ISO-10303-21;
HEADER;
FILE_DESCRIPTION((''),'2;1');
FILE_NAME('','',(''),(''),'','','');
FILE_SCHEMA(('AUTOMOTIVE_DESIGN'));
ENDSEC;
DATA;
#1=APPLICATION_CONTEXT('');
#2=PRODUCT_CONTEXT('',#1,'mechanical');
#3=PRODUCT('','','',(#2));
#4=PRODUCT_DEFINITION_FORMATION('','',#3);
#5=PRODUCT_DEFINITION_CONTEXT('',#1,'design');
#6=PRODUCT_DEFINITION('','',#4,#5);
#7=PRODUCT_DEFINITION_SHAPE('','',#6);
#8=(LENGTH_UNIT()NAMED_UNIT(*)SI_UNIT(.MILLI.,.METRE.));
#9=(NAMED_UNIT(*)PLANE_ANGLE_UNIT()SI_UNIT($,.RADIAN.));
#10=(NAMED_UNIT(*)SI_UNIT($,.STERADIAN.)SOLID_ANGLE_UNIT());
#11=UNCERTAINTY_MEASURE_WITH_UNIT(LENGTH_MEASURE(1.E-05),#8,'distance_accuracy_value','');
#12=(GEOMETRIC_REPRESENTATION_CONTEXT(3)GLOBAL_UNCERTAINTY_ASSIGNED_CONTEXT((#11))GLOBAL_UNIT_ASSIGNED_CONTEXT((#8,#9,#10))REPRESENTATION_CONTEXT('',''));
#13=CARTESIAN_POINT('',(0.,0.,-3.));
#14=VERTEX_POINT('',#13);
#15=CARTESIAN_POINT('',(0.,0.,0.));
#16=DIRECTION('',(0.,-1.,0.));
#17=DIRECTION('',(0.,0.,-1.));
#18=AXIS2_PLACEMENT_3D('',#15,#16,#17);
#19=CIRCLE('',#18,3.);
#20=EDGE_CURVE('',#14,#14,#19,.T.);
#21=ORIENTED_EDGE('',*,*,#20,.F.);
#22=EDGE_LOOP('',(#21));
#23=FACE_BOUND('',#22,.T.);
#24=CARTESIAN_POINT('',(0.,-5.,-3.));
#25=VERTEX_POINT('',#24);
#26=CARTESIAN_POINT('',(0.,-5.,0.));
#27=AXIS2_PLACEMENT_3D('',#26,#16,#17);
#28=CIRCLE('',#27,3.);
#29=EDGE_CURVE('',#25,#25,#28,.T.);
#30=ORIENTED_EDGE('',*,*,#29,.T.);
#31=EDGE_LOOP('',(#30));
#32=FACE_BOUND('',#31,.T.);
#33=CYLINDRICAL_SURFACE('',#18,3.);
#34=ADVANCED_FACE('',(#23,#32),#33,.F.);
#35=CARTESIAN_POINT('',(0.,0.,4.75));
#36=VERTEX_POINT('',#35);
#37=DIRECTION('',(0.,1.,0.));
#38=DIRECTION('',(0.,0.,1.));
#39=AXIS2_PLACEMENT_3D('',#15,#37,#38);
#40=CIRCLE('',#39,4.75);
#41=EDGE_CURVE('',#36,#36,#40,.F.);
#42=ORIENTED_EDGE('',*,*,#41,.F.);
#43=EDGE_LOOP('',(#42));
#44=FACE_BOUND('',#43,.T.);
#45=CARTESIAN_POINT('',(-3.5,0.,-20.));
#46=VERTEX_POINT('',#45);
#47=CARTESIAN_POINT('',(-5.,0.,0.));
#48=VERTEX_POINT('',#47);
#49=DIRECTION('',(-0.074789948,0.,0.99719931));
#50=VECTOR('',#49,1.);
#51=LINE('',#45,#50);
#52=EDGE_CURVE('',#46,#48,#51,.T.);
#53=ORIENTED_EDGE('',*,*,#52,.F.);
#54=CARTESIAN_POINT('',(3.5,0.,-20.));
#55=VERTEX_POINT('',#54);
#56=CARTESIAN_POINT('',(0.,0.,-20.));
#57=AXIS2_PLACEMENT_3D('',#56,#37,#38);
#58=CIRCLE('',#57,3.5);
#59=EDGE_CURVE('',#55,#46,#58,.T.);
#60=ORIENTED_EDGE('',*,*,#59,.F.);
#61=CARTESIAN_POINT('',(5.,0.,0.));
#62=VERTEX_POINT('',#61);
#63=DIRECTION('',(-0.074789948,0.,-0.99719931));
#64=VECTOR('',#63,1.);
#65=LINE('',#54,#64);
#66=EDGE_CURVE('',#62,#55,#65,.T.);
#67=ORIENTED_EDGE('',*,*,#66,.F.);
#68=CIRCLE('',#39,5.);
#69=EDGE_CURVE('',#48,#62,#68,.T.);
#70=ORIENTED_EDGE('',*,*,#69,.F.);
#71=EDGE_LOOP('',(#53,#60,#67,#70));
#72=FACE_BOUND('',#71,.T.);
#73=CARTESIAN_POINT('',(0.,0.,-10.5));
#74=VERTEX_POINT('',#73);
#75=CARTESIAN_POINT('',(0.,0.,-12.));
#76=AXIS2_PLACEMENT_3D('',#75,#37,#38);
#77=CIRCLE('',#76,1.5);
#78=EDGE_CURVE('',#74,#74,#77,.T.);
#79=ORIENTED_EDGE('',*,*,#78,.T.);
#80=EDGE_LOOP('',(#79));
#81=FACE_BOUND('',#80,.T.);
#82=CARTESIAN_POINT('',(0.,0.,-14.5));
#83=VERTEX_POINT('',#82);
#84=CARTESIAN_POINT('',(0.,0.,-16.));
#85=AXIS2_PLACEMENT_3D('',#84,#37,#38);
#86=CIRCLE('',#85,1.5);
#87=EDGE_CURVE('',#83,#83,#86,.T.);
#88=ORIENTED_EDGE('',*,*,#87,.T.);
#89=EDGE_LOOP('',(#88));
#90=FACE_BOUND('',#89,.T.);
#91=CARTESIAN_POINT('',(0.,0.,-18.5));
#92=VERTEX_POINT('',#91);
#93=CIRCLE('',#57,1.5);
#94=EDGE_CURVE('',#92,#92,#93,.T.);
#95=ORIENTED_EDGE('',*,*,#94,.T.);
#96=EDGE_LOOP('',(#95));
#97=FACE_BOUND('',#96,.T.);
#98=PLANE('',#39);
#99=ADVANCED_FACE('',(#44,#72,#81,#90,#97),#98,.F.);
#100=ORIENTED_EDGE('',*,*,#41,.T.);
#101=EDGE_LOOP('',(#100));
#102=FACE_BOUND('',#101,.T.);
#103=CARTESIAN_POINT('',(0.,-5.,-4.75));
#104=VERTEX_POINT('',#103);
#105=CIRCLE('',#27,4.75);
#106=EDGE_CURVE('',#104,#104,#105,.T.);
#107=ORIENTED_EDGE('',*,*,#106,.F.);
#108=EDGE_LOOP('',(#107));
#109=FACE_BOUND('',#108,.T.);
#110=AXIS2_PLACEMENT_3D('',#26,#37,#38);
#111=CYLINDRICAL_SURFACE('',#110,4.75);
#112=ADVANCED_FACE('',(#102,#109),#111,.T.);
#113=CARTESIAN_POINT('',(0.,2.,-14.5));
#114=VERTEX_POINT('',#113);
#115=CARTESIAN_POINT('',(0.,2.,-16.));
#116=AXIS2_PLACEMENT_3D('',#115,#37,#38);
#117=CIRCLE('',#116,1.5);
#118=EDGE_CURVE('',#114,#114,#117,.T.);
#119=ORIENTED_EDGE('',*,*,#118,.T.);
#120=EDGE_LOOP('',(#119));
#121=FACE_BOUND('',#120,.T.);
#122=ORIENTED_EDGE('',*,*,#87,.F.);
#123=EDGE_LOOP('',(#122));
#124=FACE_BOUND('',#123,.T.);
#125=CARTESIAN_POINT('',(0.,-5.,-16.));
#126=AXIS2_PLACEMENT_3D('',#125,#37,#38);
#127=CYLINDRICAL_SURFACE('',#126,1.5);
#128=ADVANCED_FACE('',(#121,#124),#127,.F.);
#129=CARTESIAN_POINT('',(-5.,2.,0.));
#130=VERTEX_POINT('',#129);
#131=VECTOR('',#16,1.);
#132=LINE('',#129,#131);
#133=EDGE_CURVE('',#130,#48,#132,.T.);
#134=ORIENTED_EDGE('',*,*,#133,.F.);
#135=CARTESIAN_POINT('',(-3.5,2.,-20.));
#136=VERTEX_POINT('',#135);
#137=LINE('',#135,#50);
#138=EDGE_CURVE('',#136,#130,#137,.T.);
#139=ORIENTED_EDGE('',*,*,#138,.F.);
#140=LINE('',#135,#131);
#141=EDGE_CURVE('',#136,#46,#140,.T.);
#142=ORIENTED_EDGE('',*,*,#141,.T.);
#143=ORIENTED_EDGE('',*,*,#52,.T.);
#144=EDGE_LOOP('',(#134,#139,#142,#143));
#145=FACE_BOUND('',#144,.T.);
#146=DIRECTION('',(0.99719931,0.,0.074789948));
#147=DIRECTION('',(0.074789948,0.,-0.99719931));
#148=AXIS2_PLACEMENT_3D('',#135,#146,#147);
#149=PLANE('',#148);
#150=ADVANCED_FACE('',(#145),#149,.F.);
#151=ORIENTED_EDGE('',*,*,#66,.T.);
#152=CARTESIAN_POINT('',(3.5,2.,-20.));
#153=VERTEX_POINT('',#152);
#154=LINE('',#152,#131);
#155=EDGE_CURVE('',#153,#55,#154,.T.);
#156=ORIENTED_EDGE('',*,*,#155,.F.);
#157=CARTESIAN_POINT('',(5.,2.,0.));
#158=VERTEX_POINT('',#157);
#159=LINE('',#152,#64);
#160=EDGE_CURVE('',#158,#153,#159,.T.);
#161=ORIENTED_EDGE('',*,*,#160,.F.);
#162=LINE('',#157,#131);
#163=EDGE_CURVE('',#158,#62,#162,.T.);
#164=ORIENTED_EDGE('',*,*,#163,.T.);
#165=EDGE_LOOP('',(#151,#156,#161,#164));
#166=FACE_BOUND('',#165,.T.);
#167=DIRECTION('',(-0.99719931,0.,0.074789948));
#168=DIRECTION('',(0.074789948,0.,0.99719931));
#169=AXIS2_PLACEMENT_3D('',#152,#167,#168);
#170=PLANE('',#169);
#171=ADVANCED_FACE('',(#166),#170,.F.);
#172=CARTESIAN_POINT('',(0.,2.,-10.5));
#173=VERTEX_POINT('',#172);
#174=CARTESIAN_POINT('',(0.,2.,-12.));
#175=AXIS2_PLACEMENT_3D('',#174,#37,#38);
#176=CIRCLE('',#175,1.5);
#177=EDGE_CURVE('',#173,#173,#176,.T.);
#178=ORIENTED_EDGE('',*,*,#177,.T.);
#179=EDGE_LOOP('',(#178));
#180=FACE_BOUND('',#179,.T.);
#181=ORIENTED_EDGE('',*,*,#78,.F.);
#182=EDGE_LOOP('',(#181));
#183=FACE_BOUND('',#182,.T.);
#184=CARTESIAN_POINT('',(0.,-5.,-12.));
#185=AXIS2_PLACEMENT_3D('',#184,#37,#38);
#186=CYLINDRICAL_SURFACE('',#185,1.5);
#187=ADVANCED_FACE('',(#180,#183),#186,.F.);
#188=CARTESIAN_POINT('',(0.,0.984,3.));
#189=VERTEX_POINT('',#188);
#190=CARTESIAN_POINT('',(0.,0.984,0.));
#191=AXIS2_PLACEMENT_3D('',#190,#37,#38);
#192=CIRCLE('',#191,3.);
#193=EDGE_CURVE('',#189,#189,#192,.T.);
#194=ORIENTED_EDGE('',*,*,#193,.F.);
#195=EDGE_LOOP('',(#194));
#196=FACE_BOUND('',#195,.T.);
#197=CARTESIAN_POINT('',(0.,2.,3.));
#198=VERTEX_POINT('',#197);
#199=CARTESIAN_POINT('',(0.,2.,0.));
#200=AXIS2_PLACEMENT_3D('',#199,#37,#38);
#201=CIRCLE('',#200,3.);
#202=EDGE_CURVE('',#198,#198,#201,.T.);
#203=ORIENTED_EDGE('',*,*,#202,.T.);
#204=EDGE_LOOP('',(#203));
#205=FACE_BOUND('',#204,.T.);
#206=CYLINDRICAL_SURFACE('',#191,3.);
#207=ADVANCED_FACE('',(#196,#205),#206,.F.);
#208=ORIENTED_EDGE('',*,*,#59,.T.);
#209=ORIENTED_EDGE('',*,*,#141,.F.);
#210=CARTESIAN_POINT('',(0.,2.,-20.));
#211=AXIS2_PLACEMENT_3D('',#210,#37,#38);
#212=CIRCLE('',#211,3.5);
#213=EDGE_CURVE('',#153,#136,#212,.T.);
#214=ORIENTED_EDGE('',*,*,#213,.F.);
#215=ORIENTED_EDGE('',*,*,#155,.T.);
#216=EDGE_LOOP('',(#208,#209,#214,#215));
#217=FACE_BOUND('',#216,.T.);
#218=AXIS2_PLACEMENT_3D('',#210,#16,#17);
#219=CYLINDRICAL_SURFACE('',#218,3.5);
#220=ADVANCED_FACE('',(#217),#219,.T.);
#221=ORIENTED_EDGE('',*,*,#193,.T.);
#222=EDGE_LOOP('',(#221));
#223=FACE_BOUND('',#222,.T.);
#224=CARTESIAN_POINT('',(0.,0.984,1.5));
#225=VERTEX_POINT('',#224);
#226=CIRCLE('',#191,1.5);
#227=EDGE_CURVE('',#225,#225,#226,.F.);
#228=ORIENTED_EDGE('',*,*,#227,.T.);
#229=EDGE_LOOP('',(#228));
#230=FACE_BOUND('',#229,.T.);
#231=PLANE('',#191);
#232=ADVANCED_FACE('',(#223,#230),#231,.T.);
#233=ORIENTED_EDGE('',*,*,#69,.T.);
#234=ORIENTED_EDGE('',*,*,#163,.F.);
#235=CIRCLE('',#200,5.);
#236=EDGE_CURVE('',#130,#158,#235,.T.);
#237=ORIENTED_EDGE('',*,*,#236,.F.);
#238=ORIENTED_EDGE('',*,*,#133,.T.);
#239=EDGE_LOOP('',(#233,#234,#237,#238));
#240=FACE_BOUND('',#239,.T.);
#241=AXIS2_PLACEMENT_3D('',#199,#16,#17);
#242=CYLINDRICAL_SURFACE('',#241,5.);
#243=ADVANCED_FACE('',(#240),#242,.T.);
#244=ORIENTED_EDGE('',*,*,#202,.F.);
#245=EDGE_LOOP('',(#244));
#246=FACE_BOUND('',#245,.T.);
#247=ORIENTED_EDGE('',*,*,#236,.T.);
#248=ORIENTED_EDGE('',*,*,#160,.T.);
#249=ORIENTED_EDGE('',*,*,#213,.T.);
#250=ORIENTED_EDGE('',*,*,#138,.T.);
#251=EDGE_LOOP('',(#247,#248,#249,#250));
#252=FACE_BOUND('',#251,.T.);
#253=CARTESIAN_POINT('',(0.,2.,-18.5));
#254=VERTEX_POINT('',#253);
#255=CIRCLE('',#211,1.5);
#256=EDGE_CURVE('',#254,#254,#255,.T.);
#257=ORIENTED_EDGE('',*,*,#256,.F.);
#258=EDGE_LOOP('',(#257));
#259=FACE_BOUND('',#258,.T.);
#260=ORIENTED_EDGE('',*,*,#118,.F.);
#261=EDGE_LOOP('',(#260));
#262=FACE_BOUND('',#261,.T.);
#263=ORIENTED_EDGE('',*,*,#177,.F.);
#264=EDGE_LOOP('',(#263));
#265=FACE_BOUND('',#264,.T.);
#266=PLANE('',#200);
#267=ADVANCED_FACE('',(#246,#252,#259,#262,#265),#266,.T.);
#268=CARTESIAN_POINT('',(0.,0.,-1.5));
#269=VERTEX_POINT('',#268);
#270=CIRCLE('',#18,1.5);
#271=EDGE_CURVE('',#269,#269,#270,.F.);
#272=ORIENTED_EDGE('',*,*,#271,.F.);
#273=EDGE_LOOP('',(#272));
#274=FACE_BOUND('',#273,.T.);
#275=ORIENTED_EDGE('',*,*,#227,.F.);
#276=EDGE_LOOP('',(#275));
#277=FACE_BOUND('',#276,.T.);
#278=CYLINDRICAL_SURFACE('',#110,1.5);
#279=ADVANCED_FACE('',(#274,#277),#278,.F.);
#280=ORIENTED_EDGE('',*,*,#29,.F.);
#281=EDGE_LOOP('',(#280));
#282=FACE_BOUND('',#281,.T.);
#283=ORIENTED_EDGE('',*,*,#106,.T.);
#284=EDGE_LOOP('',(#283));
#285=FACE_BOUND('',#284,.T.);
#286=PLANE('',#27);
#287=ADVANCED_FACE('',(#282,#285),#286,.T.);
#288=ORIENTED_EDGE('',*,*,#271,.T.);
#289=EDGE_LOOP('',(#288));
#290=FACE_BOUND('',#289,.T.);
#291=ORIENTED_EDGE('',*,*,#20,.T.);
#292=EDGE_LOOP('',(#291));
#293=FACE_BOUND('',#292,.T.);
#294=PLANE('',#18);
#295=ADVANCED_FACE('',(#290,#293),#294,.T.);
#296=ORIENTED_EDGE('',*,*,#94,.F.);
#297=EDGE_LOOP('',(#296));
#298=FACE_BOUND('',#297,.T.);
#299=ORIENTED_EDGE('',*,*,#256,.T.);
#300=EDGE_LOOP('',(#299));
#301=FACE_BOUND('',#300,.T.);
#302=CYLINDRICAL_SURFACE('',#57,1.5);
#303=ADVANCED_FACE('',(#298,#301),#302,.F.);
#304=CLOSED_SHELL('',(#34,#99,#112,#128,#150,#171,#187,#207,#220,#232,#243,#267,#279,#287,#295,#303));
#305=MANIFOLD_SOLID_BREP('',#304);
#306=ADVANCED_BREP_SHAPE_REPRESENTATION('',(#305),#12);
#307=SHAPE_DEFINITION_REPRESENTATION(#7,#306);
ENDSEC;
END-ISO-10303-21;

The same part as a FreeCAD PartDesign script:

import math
import FreeCAD as App
import Part
import Sketcher

V = App.Vector

doc = App.newDocument("Part")
body = doc.addObject("PartDesign::Body", "Body")

sketch1 = body.newObject("Sketcher::SketchObject", "Sketch")
sketch1.AttachmentSupport = (doc.getObject("XZ_Plane"), [""])
sketch1.MapMode = "FlatFace"
sketch1.addGeometry(Part.LineSegment(V(5, 0, 0), V(3.5, -20, 0)), False)
sketch1.addGeometry(Part.ArcOfCircle(Part.Circle(V(0, -20, 0), V(0, 0, 1), 3.5), math.radians(180), math.radians(360)), False)
sketch1.addGeometry(Part.LineSegment(V(-3.5, -20, 0), V(-5, 0, 0)), False)
sketch1.addGeometry(Part.ArcOfCircle(Part.Circle(V(0, 0, 0), V(0, 0, 1), 5), math.radians(0), math.radians(180)), False)
sketch1.addConstraint(Sketcher.Constraint("Coincident", 0, 2, 1, 2))
sketch1.addConstraint(Sketcher.Constraint("Coincident", 1, 1, 2, 1))
sketch1.addConstraint(Sketcher.Constraint("Coincident", 2, 2, 3, 2))
sketch1.addConstraint(Sketcher.Constraint("Coincident", 3, 1, 0, 1))
sketch1.addConstraint(Sketcher.Constraint("Coincident", 3, 3, -1, 1))
sketch1.addConstraint(Sketcher.Constraint("Symmetric", 0, 2, 1, 1, -2))
sketch1.addConstraint(Sketcher.Constraint("PointOnObject", 2, 2, -1))
sketch1.addConstraint(Sketcher.Constraint("PointOnObject", 3, 1, -1))
sketch1.addConstraint(Sketcher.Constraint("Horizontal", 1, 3, 0, 2))
sketch1.addConstraint(Sketcher.Constraint("Radius", 3, 5.0))
sketch1.addConstraint(Sketcher.Constraint("Radius", 1, 3.5))
sketch1.addConstraint(Sketcher.Constraint("DistanceY", 1, 3, -1, 1, 20.0))
pad1 = body.newObject("PartDesign::Pad", "Pad")
pad1.Profile = sketch1
pad1.Length = 2
pad1.Reversed = True

sketch2 = body.newObject("Sketcher::SketchObject", "Sketch001")
sketch2.AttachmentSupport = (doc.getObject("XZ_Plane"), [""])
sketch2.MapMode = "FlatFace"
sketch2.AttachmentOffset = App.Placement(V(0, 0, -2), App.Rotation())
sketch2.addGeometry(Part.Circle(V(0, -20, 0), V(0, 0, 1), 1.5), False)
sketch2.addConstraint(Sketcher.Constraint("PointOnObject", 0, 3, -2))
sketch2.addConstraint(Sketcher.Constraint("Diameter", 0, 3.0))
sketch2.addConstraint(Sketcher.Constraint("DistanceY", 0, 3, -1, 1, 20.0))
pocket1 = body.newObject("PartDesign::Pocket", "Pocket")
pocket1.Profile = sketch2
pocket1.Type = "ThroughAll"
pocket1.Reversed = True

sketch3 = body.newObject("Sketcher::SketchObject", "Sketch002")
sketch3.AttachmentSupport = (doc.getObject("XZ_Plane"), [""])
sketch3.MapMode = "FlatFace"
sketch3.addGeometry(Part.Circle(V(0, 0, 0), V(0, 0, 1), 4.8), False)
sketch3.addConstraint(Sketcher.Constraint("Coincident", 0, 3, -1, 1))
sketch3.addConstraint(Sketcher.Constraint("Diameter", 0, 9.5))
pad2 = body.newObject("PartDesign::Pad", "Pad001")
pad2.Profile = sketch3
pad2.Length = 5

sketch4 = body.newObject("Sketcher::SketchObject", "Sketch003")
sketch4.AttachmentSupport = (doc.getObject("XZ_Plane"), [""])
sketch4.MapMode = "FlatFace"
sketch4.AttachmentOffset = App.Placement(V(0, 0, -2), App.Rotation())
sketch4.addGeometry(Part.Circle(V(0, 0, 0), V(0, 0, 1), 1.5), False)
sketch4.addConstraint(Sketcher.Constraint("Coincident", 0, 3, -1, 1))
sketch4.addConstraint(Sketcher.Constraint("Diameter", 0, 3.0))
pocket2 = body.newObject("PartDesign::Pocket", "Pocket001")
pocket2.Profile = sketch4
pocket2.Type = "ThroughAll"
pocket2.Reversed = True

sketch5 = body.newObject("Sketcher::SketchObject", "Sketch004")
sketch5.AttachmentSupport = (doc.getObject("XZ_Plane"), [""])
sketch5.MapMode = "FlatFace"
sketch5.AttachmentOffset = App.Placement(V(0, 0, -2), App.Rotation())
sketch5.addGeometry(Part.Circle(V(0, 0, 0), V(0, 0, 1), 3), False)
sketch5.addConstraint(Sketcher.Constraint("Coincident", 0, 3, -1, 1))
sketch5.addConstraint(Sketcher.Constraint("Diameter", 0, 6.0))
pocket3 = body.newObject("PartDesign::Pocket", "Pocket002")
pocket3.Profile = sketch5
pocket3.Length = 1.016
pocket3.Reversed = True

sketch6 = body.newObject("Sketcher::SketchObject", "Sketch005")
sketch6.AttachmentSupport = (doc.getObject("XZ_Plane"), [""])
sketch6.MapMode = "FlatFace"
sketch6.AttachmentOffset = App.Placement(V(0, 0, -2), App.Rotation())
sketch6.addGeometry(Part.Circle(V(0, -16, 0), V(0, 0, 1), 1.5), False)
sketch6.addConstraint(Sketcher.Constraint("PointOnObject", 0, 3, -2))
sketch6.addConstraint(Sketcher.Constraint("Diameter", 0, 3.0))
sketch6.addConstraint(Sketcher.Constraint("DistanceY", 0, 3, -1, 1, 16.0))
pocket4 = body.newObject("PartDesign::Pocket", "Pocket003")
pocket4.Profile = sketch6
pocket4.Type = "ThroughAll"
pocket4.Reversed = True

sketch7 = body.newObject("Sketcher::SketchObject", "Sketch006")
sketch7.AttachmentSupport = (doc.getObject("XZ_Plane"), [""])
sketch7.MapMode = "FlatFace"
sketch7.AttachmentOffset = App.Placement(V(0, 0, -2), App.Rotation())
sketch7.addGeometry(Part.Circle(V(0, -12, 0), V(0, 0, 1), 1.5), False)
sketch7.addConstraint(Sketcher.Constraint("PointOnObject", 0, 3, -2))
sketch7.addConstraint(Sketcher.Constraint("Diameter", 0, 3.0))
sketch7.addConstraint(Sketcher.Constraint("DistanceY", 0, 3, -1, 1, 12.0))
pocket5 = body.newObject("PartDesign::Pocket", "Pocket004")
pocket5.Profile = sketch7
pocket5.Type = "ThroughAll"
pocket5.Reversed = True

sketch8 = body.newObject("Sketcher::SketchObject", "Sketch007")
sketch8.AttachmentSupport = (doc.getObject("XZ_Plane"), [""])
sketch8.MapMode = "FlatFace"
sketch8.AttachmentOffset = App.Placement(V(0, 0, 5), App.Rotation())
sketch8.addGeometry(Part.Circle(V(0, 0, 0), V(0, 0, 1), 3), False)
sketch8.addConstraint(Sketcher.Constraint("Coincident", 0, 3, -1, 1))
sketch8.addConstraint(Sketcher.Constraint("Diameter", 0, 6.0))
pocket6 = body.newObject("PartDesign::Pocket", "Pocket005")
pocket6.Profile = sketch8
pocket6.Length = 5

doc.recompute()
